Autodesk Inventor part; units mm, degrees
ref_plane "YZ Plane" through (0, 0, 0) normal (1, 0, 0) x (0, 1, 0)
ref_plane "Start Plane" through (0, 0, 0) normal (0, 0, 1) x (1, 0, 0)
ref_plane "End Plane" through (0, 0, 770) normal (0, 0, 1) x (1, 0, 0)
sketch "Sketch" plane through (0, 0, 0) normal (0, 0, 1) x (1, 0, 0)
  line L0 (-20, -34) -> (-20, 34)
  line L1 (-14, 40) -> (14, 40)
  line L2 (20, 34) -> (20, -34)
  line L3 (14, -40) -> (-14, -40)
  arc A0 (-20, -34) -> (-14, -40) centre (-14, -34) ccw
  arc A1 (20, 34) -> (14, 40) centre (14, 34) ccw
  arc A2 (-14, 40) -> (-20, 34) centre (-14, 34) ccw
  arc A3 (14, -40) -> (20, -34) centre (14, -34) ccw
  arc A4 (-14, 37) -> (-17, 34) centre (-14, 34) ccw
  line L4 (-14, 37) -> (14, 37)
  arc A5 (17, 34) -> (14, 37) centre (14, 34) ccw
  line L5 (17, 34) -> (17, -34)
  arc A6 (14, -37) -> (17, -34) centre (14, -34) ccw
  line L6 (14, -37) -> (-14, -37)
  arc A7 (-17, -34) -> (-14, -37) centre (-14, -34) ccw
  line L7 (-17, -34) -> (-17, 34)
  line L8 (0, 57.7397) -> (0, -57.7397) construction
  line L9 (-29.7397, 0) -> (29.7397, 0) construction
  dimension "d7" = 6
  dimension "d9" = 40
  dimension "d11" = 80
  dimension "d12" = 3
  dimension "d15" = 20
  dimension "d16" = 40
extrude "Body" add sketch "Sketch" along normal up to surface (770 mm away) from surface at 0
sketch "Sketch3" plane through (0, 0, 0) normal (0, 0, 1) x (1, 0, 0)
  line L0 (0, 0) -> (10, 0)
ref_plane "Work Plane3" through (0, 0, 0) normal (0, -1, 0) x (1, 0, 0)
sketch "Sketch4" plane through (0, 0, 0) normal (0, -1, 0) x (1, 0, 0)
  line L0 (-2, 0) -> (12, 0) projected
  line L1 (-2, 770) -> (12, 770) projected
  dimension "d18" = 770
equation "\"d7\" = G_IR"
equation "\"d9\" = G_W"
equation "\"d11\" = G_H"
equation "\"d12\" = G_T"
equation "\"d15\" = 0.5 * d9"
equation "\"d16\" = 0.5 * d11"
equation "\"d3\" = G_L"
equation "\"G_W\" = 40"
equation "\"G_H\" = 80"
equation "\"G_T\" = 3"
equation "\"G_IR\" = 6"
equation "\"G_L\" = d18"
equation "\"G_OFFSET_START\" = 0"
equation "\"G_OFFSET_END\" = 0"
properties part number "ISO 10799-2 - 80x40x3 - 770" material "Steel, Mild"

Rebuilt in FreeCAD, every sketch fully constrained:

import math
import FreeCAD as App
import Part
import Sketcher

V = App.Vector
Q = App.Units.Quantity

doc = App.newDocument("Part")
body = doc.addObject("PartDesign::Body", "Body")

# Sketch on XY plane
sketch1 = body.newObject("Sketcher::SketchObject", "Sketch")
sketch1.AttachmentSupport = (doc.getObject("XY_Plane"), [""])
sketch1.MapMode = "FlatFace"
sketch1.addGeometry([
    Part.LineSegment(V(-20, 34, 0), V(-20, -34, 0)),  # 0
    Part.ArcOfCircle(Part.Circle(V(-14, -34, 0), V(0, 0, 1), 6), math.radians(180), math.radians(270)),  # 1
    Part.LineSegment(V(-14, -40, 0), V(14, -40, 0)),  # 2
    Part.ArcOfCircle(Part.Circle(V(14, -34, 0), V(0, 0, 1), 6), math.radians(-90), math.radians(0)),  # 3
    Part.LineSegment(V(20, -34, 0), V(20, 34, 0)),  # 4
    Part.ArcOfCircle(Part.Circle(V(14, 34, 0), V(0, 0, 1), 6), math.radians(0), math.radians(90)),  # 5
    Part.LineSegment(V(14, 40, 0), V(-14, 40, 0)),  # 6
    Part.ArcOfCircle(Part.Circle(V(-14, 34, 0), V(0, 0, 1), 6), math.radians(90), math.radians(180)),  # 7
    Part.ArcOfCircle(Part.Circle(V(-14, 34, 0), V(0, 0, 1), 3), math.radians(90), math.radians(180)),  # 8
    Part.LineSegment(V(-14, 37, 0), V(14, 37, 0)),  # 9
    Part.ArcOfCircle(Part.Circle(V(14, 34, 0), V(0, 0, 1), 3), math.radians(0), math.radians(90)),  # 10
    Part.LineSegment(V(17, 34, 0), V(17, -34, 0)),  # 11
    Part.ArcOfCircle(Part.Circle(V(14, -34, 0), V(0, 0, 1), 3), math.radians(-90), math.radians(0)),  # 12
    Part.LineSegment(V(14, -37, 0), V(-14, -37, 0)),  # 13
    Part.ArcOfCircle(Part.Circle(V(-14, -34, 0), V(0, 0, 1), 3), math.radians(180), math.radians(270)),  # 14
    Part.LineSegment(V(-17, -34, 0), V(-17, 34, 0)),  # 15
], False)
sketch1.addConstraint([
    Sketcher.Constraint("Tangent", 0, 2, 1, 1),
    Sketcher.Constraint("Tangent", 1, 2, 2, 1),
    Sketcher.Constraint("Tangent", 2, 2, 3, 1),
    Sketcher.Constraint("Tangent", 3, 2, 4, 1),
    Sketcher.Constraint("Tangent", 4, 2, 5, 1),
    Sketcher.Constraint("Tangent", 5, 2, 6, 1),
    Sketcher.Constraint("Tangent", 6, 2, 7, 1),
    Sketcher.Constraint("Tangent", 7, 2, 0, 1),
    Sketcher.Constraint("Tangent", 8, 1, 9, 1),
    Sketcher.Constraint("Tangent", 9, 2, 10, 2),
    Sketcher.Constraint("Tangent", 10, 1, 11, 1),
    Sketcher.Constraint("Tangent", 11, 2, 12, 2),
    Sketcher.Constraint("Tangent", 12, 1, 13, 1),
    Sketcher.Constraint("Tangent", 13, 2, 14, 2),
    Sketcher.Constraint("Tangent", 14, 1, 15, 1),
    Sketcher.Constraint("Tangent", 15, 2, 8, 2),
    Sketcher.Constraint("Vertical", 0),
    Sketcher.Constraint("Horizontal", 2),
    Sketcher.Constraint("Vertical", 4),
    Sketcher.Constraint("Horizontal", 6),
    Sketcher.Constraint("Horizontal", 9),
    Sketcher.Constraint("Vertical", 11),
    Sketcher.Constraint("Horizontal", 13),
    Sketcher.Constraint("Vertical", 15),
    Sketcher.Constraint("Coincident", 8, 3, 7, 3),
    Sketcher.Constraint("Coincident", 10, 3, 5, 3),
    Sketcher.Constraint("Coincident", 12, 3, 3, 3),
    Sketcher.Constraint("Equal", 1, 3),
    Sketcher.Constraint("Equal", 3, 5),
    Sketcher.Constraint("Equal", 5, 7),
    Sketcher.Constraint("Equal", 12, 14),
    Sketcher.Constraint("Symmetric", 1, 3, 5, 3, -1, 1),
    Sketcher.Constraint("Radius", 1, Q("6 mm")),
    Sketcher.Constraint("Radius", 8, Q("3 mm")),
    Sketcher.Constraint("DistanceX", 0, 2, -1, 1, Q("20 mm")),
    Sketcher.Constraint("DistanceY", 1, 2, -1, 1, Q("40 mm")),
])
pad1 = body.newObject("PartDesign::Pad", "Pad")
pad1.Profile = sketch1
pad1.Length = 770

doc.recompute()
